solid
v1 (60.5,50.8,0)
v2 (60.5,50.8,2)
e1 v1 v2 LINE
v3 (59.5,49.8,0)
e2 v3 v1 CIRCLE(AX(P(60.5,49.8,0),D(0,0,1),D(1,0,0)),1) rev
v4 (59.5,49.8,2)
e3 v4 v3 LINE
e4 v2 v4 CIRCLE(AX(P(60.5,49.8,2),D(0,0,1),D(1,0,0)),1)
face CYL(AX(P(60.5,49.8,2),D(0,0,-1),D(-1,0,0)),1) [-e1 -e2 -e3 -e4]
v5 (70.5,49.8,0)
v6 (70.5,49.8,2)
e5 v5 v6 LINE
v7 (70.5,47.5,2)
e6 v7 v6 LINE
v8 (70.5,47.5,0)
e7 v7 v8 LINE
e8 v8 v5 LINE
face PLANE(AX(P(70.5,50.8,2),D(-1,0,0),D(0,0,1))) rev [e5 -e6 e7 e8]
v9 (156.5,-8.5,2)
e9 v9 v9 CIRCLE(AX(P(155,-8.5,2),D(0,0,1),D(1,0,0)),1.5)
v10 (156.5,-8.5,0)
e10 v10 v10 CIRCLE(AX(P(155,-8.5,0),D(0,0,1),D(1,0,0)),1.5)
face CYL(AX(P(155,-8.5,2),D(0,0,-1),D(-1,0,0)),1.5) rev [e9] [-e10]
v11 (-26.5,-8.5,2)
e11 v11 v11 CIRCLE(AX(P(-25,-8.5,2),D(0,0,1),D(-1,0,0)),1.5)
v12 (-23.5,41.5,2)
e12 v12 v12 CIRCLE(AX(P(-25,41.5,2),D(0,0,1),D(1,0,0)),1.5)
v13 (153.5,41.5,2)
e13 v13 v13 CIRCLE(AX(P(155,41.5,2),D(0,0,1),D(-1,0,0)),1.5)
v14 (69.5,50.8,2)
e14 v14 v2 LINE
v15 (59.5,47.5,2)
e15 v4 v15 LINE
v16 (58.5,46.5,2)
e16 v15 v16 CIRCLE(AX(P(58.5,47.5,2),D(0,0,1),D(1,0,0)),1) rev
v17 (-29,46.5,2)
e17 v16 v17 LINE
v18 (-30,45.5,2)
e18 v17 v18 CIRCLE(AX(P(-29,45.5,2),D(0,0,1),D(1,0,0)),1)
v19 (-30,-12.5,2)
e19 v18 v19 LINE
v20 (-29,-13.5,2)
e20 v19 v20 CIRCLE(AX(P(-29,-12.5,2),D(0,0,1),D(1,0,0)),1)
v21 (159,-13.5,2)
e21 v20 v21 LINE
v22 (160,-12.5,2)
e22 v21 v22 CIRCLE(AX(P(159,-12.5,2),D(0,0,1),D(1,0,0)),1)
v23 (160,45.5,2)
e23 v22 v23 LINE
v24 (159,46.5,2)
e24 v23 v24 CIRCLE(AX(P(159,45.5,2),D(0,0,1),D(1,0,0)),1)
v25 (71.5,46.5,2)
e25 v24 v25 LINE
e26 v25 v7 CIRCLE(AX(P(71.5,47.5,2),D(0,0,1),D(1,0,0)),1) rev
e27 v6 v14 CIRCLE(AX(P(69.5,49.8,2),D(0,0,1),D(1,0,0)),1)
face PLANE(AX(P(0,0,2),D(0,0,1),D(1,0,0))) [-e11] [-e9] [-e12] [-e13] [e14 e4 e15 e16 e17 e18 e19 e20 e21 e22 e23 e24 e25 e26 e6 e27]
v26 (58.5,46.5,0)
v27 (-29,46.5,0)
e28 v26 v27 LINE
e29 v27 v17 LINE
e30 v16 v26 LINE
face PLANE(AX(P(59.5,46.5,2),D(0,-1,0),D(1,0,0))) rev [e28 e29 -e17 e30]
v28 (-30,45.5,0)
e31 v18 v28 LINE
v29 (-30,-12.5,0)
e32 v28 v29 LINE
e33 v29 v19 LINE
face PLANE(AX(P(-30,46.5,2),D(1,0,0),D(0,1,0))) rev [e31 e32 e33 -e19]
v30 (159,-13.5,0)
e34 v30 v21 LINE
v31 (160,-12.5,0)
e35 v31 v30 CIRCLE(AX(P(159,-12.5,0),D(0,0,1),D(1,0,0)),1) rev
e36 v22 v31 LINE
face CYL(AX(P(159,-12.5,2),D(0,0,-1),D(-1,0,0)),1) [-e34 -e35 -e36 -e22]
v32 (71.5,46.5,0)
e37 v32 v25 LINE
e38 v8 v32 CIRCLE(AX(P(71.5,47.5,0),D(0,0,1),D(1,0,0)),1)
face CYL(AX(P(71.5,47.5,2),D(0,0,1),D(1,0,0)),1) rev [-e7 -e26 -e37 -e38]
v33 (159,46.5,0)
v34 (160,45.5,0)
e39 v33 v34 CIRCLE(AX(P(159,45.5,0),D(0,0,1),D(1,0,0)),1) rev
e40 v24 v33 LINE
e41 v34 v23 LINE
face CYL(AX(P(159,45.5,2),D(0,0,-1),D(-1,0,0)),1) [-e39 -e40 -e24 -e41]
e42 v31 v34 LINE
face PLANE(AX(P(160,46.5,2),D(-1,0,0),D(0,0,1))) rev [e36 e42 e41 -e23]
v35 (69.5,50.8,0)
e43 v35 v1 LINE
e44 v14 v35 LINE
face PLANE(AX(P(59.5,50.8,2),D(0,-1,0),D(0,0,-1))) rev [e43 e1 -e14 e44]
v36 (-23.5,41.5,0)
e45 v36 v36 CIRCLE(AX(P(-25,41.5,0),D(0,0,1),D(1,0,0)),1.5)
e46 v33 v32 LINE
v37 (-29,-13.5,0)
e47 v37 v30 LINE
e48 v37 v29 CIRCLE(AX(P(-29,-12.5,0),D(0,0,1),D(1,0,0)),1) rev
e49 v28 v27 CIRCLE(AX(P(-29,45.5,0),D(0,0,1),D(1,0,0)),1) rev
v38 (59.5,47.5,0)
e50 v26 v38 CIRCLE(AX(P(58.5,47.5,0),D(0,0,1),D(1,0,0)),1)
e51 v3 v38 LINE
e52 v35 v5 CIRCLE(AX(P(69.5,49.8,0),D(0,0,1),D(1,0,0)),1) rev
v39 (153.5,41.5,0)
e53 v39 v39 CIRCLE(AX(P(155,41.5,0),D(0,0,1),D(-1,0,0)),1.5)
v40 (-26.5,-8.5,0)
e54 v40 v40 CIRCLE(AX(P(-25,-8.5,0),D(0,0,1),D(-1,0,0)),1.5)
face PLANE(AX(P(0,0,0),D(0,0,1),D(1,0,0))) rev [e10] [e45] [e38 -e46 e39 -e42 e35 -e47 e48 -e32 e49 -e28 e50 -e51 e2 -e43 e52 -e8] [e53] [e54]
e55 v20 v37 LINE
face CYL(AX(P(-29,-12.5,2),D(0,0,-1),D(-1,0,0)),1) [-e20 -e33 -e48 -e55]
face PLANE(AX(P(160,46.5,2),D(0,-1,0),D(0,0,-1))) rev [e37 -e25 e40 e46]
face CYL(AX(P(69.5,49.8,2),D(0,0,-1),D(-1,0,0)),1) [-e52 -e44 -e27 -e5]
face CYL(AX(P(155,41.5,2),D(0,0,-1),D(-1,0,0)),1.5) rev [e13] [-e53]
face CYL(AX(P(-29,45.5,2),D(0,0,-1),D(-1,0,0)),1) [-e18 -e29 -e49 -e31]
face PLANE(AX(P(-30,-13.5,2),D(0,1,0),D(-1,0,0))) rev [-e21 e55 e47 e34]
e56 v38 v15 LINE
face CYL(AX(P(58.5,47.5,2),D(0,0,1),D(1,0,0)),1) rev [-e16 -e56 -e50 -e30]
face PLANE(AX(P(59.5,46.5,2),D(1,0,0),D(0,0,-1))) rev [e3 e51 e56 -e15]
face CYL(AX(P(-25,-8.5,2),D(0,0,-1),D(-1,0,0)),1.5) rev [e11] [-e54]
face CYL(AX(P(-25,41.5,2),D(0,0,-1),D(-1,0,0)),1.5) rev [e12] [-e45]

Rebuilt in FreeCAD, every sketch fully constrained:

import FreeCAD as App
import Part
import Sketcher
from FreeCAD import Vector


def edges_at(feature, points):
    """Names of the edges that pass closest to the given points."""
    edges = feature.Shape.Edges
    near = lambda p: min(range(len(edges)), key=lambda i: edges[i].distToShape(Part.Vertex(*p))[0])
    return sorted({f"Edge{near(p) + 1}" for p in points})

doc = App.newDocument("Part")
body = doc.addObject("PartDesign::Body", "Body")

sketch1 = doc.addObject("Sketcher::SketchObject", "Sketch")
body.addObject(sketch1)
sketch1.AttachmentSupport = (doc.XY_Plane, [""])
sketch1.MapMode = "FlatFace"
sketch1.addGeometry([
    Part.LineSegment(Vector(160, 46.5, 0), Vector(70.5, 46.5, 0)),
    Part.LineSegment(Vector(70.5, 46.5, 0), Vector(70.5, 50.8, 0)),
    Part.LineSegment(Vector(70.5, 50.8, 0), Vector(59.5, 50.8, 0)),
    Part.LineSegment(Vector(59.5, 50.8, 0), Vector(59.5, 46.5, 0)),
    Part.LineSegment(Vector(59.5, 46.5, 0), Vector(-30, 46.5, 0)),
    Part.LineSegment(Vector(-30, 46.5, 0), Vector(-30, -13.5, 0)),
    Part.LineSegment(Vector(-30, -13.5, 0), Vector(160, -13.5, 0)),
    Part.LineSegment(Vector(160, -13.5, 0), Vector(160, 46.5, 0)),
    Part.Circle(Vector(-25, -8.5, 0), Vector(0, 0, 1), 1.5),
    Part.Circle(Vector(155, -8.5, 0), Vector(0, 0, 1), 1.5),
    Part.Circle(Vector(-25, 41.5, 0), Vector(0, 0, 1), 1.5),
    Part.Circle(Vector(155, 41.5, 0), Vector(0, 0, 1), 1.5),
], False)
sketch1.addConstraint([
    Sketcher.Constraint("Coincident", 0, 2, 1, 1),
    Sketcher.Constraint("Coincident", 1, 2, 2, 1),
    Sketcher.Constraint("Coincident", 2, 2, 3, 1),
    Sketcher.Constraint("Coincident", 3, 2, 4, 1),
    Sketcher.Constraint("Coincident", 4, 2, 5, 1),
    Sketcher.Constraint("Coincident", 5, 2, 6, 1),
    Sketcher.Constraint("Coincident", 6, 2, 7, 1),
    Sketcher.Constraint("Coincident", 7, 2, 0, 1),
    Sketcher.Constraint("Horizontal", 0),
    Sketcher.Constraint("Vertical", 1),
    Sketcher.Constraint("Horizontal", 2),
    Sketcher.Constraint("Vertical", 3),
    Sketcher.Constraint("Horizontal", 4),
    Sketcher.Constraint("Vertical", 5),
    Sketcher.Constraint("Horizontal", 6),
    Sketcher.Constraint("Vertical", 7),
    Sketcher.Constraint("Equal", 8, 9),
    Sketcher.Constraint("Equal", 9, 10),
    Sketcher.Constraint("Equal", 10, 11),
    Sketcher.Constraint("Horizontal", 8, 3, 9, 3),
    Sketcher.Constraint("Horizontal", 10, 3, 11, 3),
    Sketcher.Constraint("Horizontal", 0, 2, 3, 2),
    Sketcher.Constraint("Vertical", 8, 3, 10, 3),
    Sketcher.Constraint("Vertical", 9, 3, 11, 3),
    Sketcher.Constraint("Equal", 0, 4),
    Sketcher.Constraint("Diameter", 8, 3.0),
    Sketcher.Constraint("DistanceX", 2, 2, 2, 1, 11.0),
    Sketcher.Constraint("DistanceX", 6, 1, 6, 2, 190.0),
    Sketcher.Constraint("DistanceY", 5, 2, 5, 1, 60.0),
    Sketcher.Constraint("DistanceY", 1, 1, 1, 2, 4.3),
    Sketcher.Constraint("DistanceX", 8, 3, -1, 1, 25.0),
    Sketcher.Constraint("DistanceX", -1, 1, 9, 3, 155.0),
    Sketcher.Constraint("DistanceX", 4, 2, -1, 1, 30.0),
    Sketcher.Constraint("DistanceY", 8, 3, 10, 3, 50.0),
    Sketcher.Constraint("DistanceY", 11, 3, 0, 2, 5.0),
    Sketcher.Constraint("DistanceY", 8, 3, -1, 1, 8.5),
])
pad1 = doc.addObject("PartDesign::Pad", "Pad")
body.addObject(pad1)
pad1.Profile = sketch1
pad1.Length = 2
doc.recompute()

fillet = doc.addObject("PartDesign::Fillet", "Fillet")
body.addObject(fillet)
fillet.Base = (pad1, edges_at(pad1, [
    (59.5, 46.5, 1),
    (59.5, 50.8, 1),
    (70.5, 50.8, 1),
    (70.5, 46.5, 1),
    (160, 46.5, 1),
    (160, -13.5, 1),
    (-30, -13.5, 1),
    (-30, 46.5, 1),
]))
fillet.Radius = 1

doc.recompute()
